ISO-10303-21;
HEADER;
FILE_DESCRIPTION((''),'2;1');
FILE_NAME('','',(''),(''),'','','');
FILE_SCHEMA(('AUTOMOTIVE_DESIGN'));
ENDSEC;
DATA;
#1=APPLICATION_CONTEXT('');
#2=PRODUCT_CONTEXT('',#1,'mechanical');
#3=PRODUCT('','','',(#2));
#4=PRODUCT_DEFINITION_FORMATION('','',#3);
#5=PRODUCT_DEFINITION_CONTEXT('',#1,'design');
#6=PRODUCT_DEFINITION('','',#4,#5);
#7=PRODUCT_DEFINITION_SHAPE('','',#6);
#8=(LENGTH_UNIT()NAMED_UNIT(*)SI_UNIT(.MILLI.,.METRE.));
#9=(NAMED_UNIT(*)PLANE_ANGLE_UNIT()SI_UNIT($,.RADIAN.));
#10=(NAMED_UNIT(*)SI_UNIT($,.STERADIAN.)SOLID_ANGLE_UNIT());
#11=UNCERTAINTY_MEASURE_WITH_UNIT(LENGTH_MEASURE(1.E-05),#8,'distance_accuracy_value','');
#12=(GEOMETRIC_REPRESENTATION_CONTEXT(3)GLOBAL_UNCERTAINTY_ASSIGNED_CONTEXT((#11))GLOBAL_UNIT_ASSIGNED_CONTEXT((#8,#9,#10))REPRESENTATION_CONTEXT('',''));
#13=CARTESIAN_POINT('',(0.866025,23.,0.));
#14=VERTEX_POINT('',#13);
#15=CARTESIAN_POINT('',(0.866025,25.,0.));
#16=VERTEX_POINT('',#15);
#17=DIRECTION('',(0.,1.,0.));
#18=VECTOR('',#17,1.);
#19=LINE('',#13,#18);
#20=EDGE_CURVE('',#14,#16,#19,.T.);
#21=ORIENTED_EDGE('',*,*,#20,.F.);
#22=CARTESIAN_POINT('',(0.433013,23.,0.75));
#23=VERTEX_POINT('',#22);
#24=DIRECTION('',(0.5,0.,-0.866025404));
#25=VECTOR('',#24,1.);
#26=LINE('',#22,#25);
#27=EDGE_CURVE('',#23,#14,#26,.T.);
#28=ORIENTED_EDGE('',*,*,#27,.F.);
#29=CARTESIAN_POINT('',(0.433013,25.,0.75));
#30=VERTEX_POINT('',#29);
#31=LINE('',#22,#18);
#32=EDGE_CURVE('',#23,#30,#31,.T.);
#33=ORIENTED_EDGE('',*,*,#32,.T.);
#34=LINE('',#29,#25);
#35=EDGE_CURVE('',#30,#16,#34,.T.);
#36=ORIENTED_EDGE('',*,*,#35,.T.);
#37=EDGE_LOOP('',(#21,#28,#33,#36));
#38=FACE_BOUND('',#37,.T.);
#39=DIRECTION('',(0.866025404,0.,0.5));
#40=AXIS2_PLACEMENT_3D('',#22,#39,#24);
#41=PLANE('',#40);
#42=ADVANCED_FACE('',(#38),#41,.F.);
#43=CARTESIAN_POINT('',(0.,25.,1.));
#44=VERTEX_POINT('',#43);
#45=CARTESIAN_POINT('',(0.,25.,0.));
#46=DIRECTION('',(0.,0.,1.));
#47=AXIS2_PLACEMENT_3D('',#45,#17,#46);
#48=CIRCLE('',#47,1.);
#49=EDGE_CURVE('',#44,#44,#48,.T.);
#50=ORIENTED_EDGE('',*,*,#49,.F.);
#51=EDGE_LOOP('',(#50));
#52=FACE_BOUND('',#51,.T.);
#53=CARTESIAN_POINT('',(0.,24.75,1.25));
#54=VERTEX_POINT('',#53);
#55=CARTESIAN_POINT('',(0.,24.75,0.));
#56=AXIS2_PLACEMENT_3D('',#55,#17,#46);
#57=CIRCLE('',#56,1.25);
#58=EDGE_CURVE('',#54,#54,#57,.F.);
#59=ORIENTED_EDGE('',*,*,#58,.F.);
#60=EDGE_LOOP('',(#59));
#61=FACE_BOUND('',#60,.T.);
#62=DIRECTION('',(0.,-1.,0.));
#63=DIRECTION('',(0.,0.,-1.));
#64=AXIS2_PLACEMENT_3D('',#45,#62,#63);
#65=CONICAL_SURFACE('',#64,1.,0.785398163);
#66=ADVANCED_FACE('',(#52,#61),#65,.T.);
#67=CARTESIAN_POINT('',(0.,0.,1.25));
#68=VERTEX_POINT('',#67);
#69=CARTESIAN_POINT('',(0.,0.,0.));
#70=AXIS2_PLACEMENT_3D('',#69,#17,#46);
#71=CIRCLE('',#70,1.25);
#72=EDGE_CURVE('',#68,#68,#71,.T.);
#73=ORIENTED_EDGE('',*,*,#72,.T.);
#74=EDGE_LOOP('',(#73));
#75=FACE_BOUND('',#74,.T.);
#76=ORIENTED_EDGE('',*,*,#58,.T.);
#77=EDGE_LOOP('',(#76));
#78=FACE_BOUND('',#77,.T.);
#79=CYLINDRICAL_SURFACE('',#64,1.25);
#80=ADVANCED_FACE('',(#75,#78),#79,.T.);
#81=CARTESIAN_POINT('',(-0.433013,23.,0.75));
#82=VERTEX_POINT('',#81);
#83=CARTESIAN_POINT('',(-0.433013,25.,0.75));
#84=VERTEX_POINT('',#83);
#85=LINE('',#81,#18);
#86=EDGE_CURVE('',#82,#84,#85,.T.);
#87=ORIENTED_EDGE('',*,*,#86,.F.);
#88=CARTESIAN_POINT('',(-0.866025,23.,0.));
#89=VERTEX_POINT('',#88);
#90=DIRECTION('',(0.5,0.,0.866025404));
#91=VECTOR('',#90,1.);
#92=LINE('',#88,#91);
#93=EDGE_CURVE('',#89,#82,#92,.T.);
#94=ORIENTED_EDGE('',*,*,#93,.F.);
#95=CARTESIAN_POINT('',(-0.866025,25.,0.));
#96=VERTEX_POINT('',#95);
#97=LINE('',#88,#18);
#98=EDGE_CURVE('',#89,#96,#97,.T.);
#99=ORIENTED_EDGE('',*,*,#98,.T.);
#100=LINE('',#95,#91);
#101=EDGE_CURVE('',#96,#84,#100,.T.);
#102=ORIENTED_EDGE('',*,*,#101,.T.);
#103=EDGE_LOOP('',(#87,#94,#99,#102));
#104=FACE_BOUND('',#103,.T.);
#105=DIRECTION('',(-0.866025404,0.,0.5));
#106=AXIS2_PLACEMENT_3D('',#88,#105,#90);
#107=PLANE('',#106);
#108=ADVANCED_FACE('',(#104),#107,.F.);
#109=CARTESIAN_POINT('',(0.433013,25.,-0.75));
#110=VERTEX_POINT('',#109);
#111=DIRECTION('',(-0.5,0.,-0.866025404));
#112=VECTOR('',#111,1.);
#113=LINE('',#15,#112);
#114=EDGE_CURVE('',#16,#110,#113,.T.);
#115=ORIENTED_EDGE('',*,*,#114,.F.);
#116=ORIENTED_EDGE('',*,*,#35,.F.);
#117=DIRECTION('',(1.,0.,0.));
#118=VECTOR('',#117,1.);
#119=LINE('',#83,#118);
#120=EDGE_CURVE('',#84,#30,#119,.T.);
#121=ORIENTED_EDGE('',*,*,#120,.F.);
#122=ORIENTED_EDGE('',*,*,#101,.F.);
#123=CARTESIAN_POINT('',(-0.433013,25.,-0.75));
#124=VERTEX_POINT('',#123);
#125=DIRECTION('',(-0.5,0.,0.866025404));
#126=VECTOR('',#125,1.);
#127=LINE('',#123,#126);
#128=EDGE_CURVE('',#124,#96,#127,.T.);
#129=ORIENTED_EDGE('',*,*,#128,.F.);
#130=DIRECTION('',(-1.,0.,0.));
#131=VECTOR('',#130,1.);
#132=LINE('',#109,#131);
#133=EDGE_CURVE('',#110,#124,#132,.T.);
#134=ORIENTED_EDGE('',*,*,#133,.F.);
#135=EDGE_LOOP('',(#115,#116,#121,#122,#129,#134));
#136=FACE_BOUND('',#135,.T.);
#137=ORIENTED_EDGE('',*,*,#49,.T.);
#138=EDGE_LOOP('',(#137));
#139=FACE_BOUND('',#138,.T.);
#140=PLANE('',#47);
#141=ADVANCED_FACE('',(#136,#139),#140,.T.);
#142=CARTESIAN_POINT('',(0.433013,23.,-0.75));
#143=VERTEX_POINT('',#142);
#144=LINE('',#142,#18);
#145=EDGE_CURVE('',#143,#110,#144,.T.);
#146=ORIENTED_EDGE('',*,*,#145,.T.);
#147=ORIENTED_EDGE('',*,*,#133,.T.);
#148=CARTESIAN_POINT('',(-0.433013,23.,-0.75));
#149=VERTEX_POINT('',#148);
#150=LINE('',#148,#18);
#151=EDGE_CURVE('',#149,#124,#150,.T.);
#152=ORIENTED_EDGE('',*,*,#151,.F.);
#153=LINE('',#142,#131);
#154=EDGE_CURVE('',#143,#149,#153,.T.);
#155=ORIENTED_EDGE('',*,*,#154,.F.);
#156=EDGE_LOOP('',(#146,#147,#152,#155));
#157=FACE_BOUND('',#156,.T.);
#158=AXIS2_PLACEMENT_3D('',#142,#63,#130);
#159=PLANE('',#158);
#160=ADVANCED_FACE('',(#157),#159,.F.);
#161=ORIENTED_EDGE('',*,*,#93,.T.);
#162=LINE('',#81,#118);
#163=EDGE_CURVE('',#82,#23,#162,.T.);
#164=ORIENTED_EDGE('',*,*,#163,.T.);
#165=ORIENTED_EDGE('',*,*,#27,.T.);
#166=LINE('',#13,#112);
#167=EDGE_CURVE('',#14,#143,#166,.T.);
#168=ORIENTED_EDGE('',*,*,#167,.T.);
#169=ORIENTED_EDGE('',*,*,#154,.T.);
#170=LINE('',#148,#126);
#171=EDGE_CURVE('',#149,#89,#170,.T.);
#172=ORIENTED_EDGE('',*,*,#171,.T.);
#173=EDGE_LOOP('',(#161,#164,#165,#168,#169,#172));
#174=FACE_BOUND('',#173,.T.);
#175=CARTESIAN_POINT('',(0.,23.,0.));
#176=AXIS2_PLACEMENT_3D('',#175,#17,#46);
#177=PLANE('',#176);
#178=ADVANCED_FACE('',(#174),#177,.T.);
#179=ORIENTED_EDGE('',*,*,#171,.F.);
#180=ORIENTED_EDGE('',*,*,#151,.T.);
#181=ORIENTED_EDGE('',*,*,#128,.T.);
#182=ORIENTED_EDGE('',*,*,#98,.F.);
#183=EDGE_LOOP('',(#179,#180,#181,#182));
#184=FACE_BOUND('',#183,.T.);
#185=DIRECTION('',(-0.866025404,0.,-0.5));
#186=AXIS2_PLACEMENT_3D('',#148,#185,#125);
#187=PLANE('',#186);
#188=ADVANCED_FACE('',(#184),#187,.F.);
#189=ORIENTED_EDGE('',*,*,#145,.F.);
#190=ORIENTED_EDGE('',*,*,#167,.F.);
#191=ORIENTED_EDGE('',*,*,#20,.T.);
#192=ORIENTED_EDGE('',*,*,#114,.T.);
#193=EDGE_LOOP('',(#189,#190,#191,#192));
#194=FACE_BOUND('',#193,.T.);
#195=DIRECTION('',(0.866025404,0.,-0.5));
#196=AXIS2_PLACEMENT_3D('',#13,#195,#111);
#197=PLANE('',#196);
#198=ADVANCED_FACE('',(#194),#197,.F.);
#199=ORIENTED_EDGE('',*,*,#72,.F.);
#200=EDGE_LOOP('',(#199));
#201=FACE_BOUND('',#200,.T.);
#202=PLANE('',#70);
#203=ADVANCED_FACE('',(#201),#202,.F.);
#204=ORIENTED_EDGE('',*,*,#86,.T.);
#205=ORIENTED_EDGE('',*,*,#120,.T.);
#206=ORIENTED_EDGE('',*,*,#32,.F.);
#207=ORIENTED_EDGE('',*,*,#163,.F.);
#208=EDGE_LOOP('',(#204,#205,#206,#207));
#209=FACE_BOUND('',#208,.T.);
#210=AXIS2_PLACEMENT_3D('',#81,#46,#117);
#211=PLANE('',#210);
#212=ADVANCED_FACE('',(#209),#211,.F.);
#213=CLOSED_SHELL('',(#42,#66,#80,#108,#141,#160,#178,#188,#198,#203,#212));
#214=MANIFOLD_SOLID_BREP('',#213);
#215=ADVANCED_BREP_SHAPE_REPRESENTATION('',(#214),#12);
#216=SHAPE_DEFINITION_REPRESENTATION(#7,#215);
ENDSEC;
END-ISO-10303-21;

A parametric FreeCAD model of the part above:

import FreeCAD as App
import Part
import Sketcher

V = App.Vector
Q = App.Units.Quantity


def edges_at(feature, points):
    """Names of the edges that pass closest to the given points."""
    edges = feature.Shape.Edges
    near = lambda p: min(range(len(edges)), key=lambda i: edges[i].distToShape(Part.Vertex(*p))[0])
    return sorted({f"Edge{near(p) + 1}" for p in points})

doc = App.newDocument("Part")
body = doc.addObject("PartDesign::Body", "Body")

# Sketch on XZ plane
sketch1 = body.newObject("Sketcher::SketchObject", "Sketch")
sketch1.AttachmentSupport = (doc.getObject("XZ_Plane"), [""])
sketch1.MapMode = "FlatFace"
sketch1.addGeometry(Part.Circle(V(0, 0, 0), V(0, 0, 1), 1.2), False)
sketch1.addConstraint([
    Sketcher.Constraint("Coincident", 0, 3, -1, 1),
    Sketcher.Constraint("Diameter", 0, Q("2.5 mm")),
])
pad1 = body.newObject("PartDesign::Pad", "Pad")
pad1.Profile = sketch1
pad1.Length = 25
pad1.Reversed = True

# Sketch on XZ plane
sketch2 = body.newObject("Sketcher::SketchObject", "Sketch001")
sketch2.AttachmentSupport = (doc.getObject("XZ_Plane"), [""])
sketch2.MapMode = "FlatFace"
sketch2.AttachmentOffset = App.Placement(V(0, 0, -25), App.Rotation())
sketch2.addGeometry([
    Part.LineSegment(V(0.9, 0, 0), V(0.4, -0.8, 0)),  # 0
    Part.LineSegment(V(0.4, -0.8, 0), V(-0.4, -0.8, 0)),  # 1
    Part.LineSegment(V(-0.4, -0.8, 0), V(-0.9, 0, 0)),  # 2
    Part.LineSegment(V(-0.9, 0, 0), V(-0.4, 0.8, 0)),  # 3
    Part.LineSegment(V(-0.4, 0.8, 0), V(0.4, 0.8, 0)),  # 4
    Part.LineSegment(V(0.4, 0.8, 0), V(0.9, 0, 0)),  # 5
], False)
sketch2.addConstraint([
    Sketcher.Constraint("Coincident", 0, 2, 1, 1),
    Sketcher.Constraint("Coincident", 1, 2, 2, 1),
    Sketcher.Constraint("Coincident", 2, 2, 3, 1),
    Sketcher.Constraint("Coincident", 3, 2, 4, 1),
    Sketcher.Constraint("Coincident", 4, 2, 5, 1),
    Sketcher.Constraint("Coincident", 5, 2, 0, 1),
    Sketcher.Constraint("Horizontal", 1),
    Sketcher.Constraint("Horizontal", 4),
    Sketcher.Constraint("Symmetric", 0, 2, 3, 2, -1, 1),
    Sketcher.Constraint("Symmetric", 2, 2, 5, 2, -1, 1),
    Sketcher.Constraint("PointOnObject", 2, 2, -1),
    Sketcher.Constraint("Parallel", 2, 5),
    Sketcher.Constraint("Vertical", 1, 2, 3, 2),
    Sketcher.Constraint("Angle", 0, Q("-120 deg")),
    Sketcher.Constraint("DistanceY", 1, 2, 3, 2, Q("1.5 mm")),
    Sketcher.Constraint("DistanceX", 1, 2, 1, 1, Q("0.866025 mm")),
])
pocket1 = body.newObject("PartDesign::Pocket", "Pocket")
pocket1.Profile = sketch2
pocket1.Length = 2
pocket1.Reversed = True
doc.recompute()

chamfer = body.newObject("PartDesign::Chamfer", "Chamfer")
chamfer.Base = (pocket1, edges_at(pocket1, [(-1.25, 25, 0)]))
chamfer.Size = 0.25

doc.recompute()
